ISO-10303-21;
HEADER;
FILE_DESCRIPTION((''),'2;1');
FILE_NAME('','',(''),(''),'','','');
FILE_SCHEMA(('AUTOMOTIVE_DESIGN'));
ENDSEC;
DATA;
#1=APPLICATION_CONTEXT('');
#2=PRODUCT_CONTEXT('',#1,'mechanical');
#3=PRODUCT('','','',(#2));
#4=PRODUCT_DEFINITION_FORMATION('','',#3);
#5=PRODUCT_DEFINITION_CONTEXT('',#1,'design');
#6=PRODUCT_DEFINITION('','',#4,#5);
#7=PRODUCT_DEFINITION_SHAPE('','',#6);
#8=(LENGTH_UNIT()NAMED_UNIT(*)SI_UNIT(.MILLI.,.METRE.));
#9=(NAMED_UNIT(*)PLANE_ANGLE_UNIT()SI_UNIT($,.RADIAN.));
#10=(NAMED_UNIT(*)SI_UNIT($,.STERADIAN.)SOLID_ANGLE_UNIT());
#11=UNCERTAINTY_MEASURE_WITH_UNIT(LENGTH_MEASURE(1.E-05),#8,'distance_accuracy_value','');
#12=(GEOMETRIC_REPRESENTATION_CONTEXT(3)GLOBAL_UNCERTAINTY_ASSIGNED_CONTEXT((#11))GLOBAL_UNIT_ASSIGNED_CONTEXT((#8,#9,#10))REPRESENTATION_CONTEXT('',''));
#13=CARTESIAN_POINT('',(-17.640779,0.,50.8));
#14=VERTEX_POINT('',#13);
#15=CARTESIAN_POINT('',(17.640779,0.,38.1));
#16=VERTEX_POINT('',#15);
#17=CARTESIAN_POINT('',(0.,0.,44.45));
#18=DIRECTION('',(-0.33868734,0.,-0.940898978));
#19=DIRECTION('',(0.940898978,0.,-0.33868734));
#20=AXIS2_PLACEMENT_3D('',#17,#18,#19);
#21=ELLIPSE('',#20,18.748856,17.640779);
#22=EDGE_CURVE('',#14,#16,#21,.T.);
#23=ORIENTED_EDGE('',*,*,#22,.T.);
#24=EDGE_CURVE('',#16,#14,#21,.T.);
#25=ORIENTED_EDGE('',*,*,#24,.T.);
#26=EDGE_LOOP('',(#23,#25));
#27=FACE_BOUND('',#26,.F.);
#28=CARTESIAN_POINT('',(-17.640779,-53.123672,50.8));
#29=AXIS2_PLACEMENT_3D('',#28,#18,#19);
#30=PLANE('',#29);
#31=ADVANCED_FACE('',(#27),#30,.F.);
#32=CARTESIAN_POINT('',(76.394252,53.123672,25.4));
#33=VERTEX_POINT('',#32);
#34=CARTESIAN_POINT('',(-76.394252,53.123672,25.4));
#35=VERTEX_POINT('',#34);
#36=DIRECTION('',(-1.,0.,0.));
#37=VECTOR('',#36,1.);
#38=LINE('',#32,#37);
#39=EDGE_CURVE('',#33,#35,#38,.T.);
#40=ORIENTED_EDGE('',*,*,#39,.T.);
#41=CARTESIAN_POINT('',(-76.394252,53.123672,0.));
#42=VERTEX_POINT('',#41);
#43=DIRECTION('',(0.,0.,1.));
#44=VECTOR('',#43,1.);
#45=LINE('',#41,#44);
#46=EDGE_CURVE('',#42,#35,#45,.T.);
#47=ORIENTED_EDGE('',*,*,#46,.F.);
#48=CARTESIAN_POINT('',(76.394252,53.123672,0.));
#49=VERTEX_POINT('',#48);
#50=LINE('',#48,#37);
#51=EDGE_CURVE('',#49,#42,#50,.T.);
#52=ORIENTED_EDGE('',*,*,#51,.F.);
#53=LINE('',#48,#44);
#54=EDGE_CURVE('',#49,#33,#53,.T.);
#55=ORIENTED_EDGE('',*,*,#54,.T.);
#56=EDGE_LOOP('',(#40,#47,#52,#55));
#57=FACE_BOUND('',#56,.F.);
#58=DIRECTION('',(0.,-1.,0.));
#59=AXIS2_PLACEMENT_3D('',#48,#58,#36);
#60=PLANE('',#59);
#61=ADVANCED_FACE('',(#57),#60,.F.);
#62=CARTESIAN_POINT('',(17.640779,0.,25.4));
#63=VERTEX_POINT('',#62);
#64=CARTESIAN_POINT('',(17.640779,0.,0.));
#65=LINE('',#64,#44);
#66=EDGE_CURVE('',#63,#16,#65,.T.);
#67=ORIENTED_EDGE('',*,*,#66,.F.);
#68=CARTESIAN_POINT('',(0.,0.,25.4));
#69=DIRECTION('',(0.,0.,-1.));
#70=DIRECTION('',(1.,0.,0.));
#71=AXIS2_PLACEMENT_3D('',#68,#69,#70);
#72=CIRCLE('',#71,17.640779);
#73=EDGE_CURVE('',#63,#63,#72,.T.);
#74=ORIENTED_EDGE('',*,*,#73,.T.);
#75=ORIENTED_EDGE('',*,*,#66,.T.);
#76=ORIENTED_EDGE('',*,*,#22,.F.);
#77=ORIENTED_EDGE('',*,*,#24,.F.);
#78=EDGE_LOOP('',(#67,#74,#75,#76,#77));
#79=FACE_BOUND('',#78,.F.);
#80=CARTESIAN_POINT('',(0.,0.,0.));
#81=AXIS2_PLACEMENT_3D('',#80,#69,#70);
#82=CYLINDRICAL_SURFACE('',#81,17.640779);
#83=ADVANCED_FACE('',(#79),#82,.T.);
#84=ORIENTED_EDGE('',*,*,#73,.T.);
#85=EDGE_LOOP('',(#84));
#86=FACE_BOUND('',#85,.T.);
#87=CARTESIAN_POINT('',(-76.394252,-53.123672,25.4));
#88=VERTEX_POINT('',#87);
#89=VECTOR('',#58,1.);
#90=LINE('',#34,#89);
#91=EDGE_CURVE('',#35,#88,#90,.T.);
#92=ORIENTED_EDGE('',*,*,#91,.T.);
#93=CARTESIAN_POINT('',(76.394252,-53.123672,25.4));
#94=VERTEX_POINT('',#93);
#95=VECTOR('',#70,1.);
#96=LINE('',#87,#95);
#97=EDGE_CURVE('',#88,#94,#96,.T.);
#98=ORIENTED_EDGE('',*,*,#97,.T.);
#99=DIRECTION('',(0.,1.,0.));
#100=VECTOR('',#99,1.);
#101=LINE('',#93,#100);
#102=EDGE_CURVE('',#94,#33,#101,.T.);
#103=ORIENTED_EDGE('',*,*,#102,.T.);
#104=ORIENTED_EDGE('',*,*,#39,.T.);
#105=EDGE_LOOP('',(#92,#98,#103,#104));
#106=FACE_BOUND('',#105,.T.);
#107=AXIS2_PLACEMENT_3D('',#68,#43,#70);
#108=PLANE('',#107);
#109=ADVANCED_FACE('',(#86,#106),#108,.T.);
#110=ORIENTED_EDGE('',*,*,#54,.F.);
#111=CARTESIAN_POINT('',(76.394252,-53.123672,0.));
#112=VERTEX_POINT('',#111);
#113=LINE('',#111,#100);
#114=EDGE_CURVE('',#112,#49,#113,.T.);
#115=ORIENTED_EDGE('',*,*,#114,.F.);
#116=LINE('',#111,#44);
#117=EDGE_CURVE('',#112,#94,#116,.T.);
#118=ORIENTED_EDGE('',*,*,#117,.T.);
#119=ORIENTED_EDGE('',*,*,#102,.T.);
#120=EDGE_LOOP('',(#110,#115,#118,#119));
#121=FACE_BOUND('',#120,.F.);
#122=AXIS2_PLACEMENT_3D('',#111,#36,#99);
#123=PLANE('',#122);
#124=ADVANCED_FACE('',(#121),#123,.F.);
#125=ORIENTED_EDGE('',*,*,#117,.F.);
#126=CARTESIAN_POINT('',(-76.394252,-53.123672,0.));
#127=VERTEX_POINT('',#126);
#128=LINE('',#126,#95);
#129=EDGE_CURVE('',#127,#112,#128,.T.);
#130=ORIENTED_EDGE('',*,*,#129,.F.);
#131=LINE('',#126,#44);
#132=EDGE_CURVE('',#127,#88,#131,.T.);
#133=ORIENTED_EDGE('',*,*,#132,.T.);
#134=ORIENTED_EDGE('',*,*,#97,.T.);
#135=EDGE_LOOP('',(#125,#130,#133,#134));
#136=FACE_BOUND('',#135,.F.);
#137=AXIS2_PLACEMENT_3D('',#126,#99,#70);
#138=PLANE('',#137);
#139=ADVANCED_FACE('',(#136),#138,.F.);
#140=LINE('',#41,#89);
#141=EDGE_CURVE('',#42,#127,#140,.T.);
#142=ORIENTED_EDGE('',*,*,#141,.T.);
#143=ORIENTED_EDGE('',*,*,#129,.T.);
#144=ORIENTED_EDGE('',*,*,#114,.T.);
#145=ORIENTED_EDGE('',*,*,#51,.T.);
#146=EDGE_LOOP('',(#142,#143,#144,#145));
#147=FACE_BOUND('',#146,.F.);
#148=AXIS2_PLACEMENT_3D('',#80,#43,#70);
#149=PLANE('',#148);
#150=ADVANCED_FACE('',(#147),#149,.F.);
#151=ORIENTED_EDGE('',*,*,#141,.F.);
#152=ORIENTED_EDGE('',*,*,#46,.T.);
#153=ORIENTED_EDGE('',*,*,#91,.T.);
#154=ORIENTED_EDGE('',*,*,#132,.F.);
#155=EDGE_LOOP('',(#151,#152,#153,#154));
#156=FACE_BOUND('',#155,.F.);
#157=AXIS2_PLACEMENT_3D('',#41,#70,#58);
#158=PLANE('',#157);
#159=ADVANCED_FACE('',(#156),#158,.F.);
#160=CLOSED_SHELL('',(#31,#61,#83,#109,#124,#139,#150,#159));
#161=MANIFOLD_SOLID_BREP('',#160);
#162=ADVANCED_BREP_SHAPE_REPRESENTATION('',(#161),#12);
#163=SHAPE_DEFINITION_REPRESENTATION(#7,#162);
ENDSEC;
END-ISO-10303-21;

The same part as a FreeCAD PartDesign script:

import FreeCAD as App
import Part
import Sketcher
Q = App.Units.Quantity


def add_polygon(sketch, points):
    """Adds a closed chain of lines whose ends are joined by coincident constraints."""
    first, n = sketch.GeometryCount, len(points)
    for a, b in zip(points, points[1:] + points[:1]):
        sketch.addGeometry(Part.LineSegment(App.Vector(*a, 0), App.Vector(*b, 0)), False)
    for i in range(n):
        sketch.addConstraint(Sketcher.Constraint("Coincident", first + i, 2, first + (i + 1) % n, 1))

doc = App.newDocument("Part")
body = doc.addObject("PartDesign::Body", "Body")

sketch1 = body.newObject("Sketcher::SketchObject", "Sketch")
sketch1.AttachmentSupport = (doc.getObject("XY_Plane"), [""])
sketch1.MapMode = "FlatFace"
add_polygon(sketch1, [(-76.394252, -53.123672), (76.394252, -53.123672), (76.394252, 53.123672), (-76.394252, 53.123672)])
sketch1.addConstraint([
    Sketcher.Constraint("Horizontal", 0),
    Sketcher.Constraint("Vertical", 1),
    Sketcher.Constraint("Horizontal", 2),
    Sketcher.Constraint("Vertical", 3),
    Sketcher.Constraint("Symmetric", 0, 2, 2, 2, -1, 1),
    Sketcher.Constraint("DistanceX", 0, 1, 0, 2, Q("152.788504 mm")),
    Sketcher.Constraint("DistanceY", 1, 1, 1, 2, Q("106.247344 mm")),
])
pad1 = body.newObject("PartDesign::Pad", "Pad")
pad1.Profile = sketch1
pad1.Length = Q("1 in")

sketch2 = body.newObject("Sketcher::SketchObject", "Sketch001")
sketch2.AttachmentSupport = (doc.getObject("XY_Plane"), [""])
sketch2.MapMode = "FlatFace"
sketch2.addGeometry(Part.Circle(App.Vector(0, 0, 0), App.Vector(0, 0, 1), 17.640779), False)
sketch2.addConstraint([
    Sketcher.Constraint("Coincident", 0, 3, -1, 1),
    Sketcher.Constraint("Diameter", 0, Q("35.281558 mm")),
])
pad2 = body.newObject("PartDesign::Pad", "Pad001")
pad2.Profile = sketch2
pad2.Length = Q("2 in")

sketch3 = body.newObject("Sketcher::SketchObject", "Sketch002")
sketch3.AttachmentSupport = (doc.getObject("XZ_Plane"), [""])
sketch3.MapMode = "FlatFace"
sketch3.AttachmentOffset = App.Placement(App.Vector(0, 0, 53.123672), App.Rotation())
add_polygon(sketch3, [(17.640779, 50.8), (-17.640779, 50.8), (17.640779, 38.1)])
sketch3.addConstraint([
    Sketcher.Constraint("Horizontal", 0),
    Sketcher.Constraint("Vertical", 2),
    Sketcher.Constraint("DistanceY", 2, 1, 2, 2, Q("0.5 in")),
    Sketcher.Constraint("DistanceY", -1, 1, 0, 2, Q("2 in")),
    Sketcher.Constraint("Distance", 1, Q("37.497711 mm")),
    Sketcher.Constraint("DistanceX", 0, 2, -1, 1, Q("17.640779 mm")),
])
pocket1 = body.newObject("PartDesign::Pocket", "Pocket")
pocket1.Profile = sketch3
pocket1.Type = "ThroughAll"

doc.recompute()
